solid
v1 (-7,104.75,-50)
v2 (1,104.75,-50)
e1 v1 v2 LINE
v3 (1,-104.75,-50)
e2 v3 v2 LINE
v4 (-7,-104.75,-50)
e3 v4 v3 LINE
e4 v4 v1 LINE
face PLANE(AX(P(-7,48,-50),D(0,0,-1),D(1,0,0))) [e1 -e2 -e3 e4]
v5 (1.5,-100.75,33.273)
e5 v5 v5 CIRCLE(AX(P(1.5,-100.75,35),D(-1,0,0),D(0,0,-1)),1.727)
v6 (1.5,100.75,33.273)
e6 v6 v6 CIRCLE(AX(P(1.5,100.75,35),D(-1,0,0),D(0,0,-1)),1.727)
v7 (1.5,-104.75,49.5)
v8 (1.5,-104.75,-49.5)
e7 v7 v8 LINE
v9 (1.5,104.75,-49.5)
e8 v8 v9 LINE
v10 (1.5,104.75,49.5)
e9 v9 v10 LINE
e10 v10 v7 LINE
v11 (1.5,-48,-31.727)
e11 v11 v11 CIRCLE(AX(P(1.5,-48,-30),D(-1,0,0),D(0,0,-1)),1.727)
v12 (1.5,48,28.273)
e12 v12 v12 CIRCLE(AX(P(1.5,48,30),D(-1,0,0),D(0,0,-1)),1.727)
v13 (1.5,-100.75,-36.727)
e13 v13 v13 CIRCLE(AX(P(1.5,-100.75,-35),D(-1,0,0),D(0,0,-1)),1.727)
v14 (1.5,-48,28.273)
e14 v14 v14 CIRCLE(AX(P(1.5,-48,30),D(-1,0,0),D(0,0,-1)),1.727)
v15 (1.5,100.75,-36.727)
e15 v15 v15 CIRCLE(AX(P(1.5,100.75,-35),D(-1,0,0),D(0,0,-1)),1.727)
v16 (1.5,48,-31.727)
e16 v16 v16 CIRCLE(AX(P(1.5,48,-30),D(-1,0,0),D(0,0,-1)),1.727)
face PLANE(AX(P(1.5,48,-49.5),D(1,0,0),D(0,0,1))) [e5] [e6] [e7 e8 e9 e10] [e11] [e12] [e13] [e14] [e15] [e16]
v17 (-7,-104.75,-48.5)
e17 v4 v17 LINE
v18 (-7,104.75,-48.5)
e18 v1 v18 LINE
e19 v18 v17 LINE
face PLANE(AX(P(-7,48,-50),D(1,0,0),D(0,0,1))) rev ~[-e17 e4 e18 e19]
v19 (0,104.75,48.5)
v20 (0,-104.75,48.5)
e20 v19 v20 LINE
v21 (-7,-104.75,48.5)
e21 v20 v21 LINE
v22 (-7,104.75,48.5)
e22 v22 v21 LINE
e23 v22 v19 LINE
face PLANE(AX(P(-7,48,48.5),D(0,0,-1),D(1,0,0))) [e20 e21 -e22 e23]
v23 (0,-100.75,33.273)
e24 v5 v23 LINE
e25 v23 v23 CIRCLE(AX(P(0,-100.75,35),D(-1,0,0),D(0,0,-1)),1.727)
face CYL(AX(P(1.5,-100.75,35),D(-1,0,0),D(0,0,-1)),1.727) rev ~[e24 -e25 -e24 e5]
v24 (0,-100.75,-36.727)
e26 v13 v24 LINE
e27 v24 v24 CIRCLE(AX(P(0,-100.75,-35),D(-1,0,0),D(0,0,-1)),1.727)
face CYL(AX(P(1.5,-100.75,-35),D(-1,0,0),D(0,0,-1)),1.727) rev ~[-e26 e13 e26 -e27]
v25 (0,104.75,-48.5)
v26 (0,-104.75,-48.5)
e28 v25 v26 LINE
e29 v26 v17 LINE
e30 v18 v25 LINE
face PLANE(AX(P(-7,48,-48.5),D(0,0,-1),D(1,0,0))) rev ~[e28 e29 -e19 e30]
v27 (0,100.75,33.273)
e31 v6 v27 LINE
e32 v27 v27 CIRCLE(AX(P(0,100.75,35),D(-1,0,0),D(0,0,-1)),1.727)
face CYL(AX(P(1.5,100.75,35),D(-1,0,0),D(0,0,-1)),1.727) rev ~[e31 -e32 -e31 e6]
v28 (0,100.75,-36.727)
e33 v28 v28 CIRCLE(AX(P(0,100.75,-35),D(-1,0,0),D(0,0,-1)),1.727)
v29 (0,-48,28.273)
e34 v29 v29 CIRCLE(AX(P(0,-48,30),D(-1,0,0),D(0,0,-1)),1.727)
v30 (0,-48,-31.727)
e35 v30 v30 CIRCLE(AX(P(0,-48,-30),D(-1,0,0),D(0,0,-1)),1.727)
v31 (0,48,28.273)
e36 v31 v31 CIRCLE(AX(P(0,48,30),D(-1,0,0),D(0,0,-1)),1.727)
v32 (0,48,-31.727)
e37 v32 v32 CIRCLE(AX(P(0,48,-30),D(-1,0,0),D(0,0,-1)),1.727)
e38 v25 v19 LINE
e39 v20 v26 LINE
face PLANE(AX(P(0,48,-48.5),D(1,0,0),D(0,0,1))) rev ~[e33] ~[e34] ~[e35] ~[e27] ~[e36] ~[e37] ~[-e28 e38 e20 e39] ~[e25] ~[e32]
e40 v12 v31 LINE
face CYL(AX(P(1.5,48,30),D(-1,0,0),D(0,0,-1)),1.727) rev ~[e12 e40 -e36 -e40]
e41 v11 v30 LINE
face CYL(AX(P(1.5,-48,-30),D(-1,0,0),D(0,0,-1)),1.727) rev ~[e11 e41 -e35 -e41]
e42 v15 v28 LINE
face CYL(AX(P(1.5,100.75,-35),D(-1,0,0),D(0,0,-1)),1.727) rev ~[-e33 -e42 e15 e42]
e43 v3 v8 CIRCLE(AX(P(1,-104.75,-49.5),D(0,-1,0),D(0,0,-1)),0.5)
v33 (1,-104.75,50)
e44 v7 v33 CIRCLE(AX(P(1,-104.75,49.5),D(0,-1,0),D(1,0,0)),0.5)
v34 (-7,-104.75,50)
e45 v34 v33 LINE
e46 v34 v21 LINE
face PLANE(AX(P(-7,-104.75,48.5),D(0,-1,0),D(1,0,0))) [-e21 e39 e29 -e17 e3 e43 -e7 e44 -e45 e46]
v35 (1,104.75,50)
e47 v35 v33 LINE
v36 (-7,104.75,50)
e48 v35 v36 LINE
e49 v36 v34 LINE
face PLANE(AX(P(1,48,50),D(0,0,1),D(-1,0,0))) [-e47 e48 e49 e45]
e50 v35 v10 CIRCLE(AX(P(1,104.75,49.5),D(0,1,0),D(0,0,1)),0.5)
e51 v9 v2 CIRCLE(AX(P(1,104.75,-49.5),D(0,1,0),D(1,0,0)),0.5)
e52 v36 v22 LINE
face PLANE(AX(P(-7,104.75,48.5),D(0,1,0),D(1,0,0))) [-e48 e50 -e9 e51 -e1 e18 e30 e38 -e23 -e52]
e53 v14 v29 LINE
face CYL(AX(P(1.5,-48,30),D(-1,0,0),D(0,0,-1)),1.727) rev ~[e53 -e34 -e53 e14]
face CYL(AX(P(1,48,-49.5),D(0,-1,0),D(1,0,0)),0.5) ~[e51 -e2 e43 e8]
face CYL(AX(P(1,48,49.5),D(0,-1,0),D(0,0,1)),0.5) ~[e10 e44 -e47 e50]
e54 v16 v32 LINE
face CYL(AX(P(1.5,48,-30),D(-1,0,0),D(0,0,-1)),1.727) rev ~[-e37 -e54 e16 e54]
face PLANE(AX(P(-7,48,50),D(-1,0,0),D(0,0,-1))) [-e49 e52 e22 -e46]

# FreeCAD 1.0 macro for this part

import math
import FreeCAD as App
import Part
import Sketcher


def edges_at(feature, points):
    """Names of the edges that pass closest to the given points."""
    edges = feature.Shape.Edges
    near = lambda p: min(range(len(edges)), key=lambda i: edges[i].distToShape(Part.Vertex(*p))[0])
    return sorted({f"Edge{near(p) + 1}" for p in points})

doc = App.newDocument("Part")
params = doc.addObject("Spreadsheet::Sheet", "Params")
for row, (alias, value) in enumerate([
    ("sketch1_width", "96 mm"),
    ("sketch1_height", "100 mm"),
    ("pad1_length", "1.5 mm"),
    ("sketch2_height", "96 mm"),
    ("sketch2_width", "8.5 mm"),
    ("pad2_length", "1.5 mm"),
    ("fillet_radius", "0.5 mm"),
    ("sketch3_radius", "0.5 mm"),
    ("sketch3_width", "8 mm"),
    ("sketch3_width2", "7 mm"),
    ("sketch3_height", "99 mm"),
    ("sketch3_height2", "97 mm"),
    ("pad3_length", "56.75 mm"),
    ("sketch4_radius", "0.5 mm"),
    ("sketch4_width", "8 mm"),
    ("sketch4_width2", "7 mm"),
    ("sketch4_height", "99 mm"),
    ("sketch4_height2", "97 mm"),
    ("pad4_length", "56.75 mm"),
    ("hole_diameter", "3.454 mm"),
], start=1):
    params.set(f"A{row}", alias)
    params.set(f"B{row}", "=" + value)
    params.setAlias(f"B{row}", alias)

body = doc.addObject("PartDesign::Body", "Body")

# Sketch on YZ plane
sketch1 = body.newObject("Sketcher::SketchObject", "Sketch")
sketch1.AttachmentSupport = (doc.getObject("YZ_Plane"), [""])
sketch1.MapMode = "FlatFace"
sketch1.addGeometry([
    Part.LineSegment(App.Vector(48, -50, 0), App.Vector(48, 50, 0)),
    Part.LineSegment(App.Vector(48, 50, 0), App.Vector(-48, 50, 0)),
    Part.LineSegment(App.Vector(-48, 50, 0), App.Vector(-48, -50, 0)),
    Part.LineSegment(App.Vector(-48, -50, 0), App.Vector(48, -50, 0)),
], False)
sketch1.addConstraint([
    Sketcher.Constraint("Coincident", 0, 2, 1, 1),
    Sketcher.Constraint("Coincident", 1, 2, 2, 1),
    Sketcher.Constraint("Coincident", 2, 2, 3, 1),
    Sketcher.Constraint("Coincident", 3, 2, 0, 1),
    Sketcher.Constraint("Vertical", 0),
    Sketcher.Constraint("Horizontal", 1),
    Sketcher.Constraint("Vertical", 2),
    Sketcher.Constraint("Horizontal", 3),
    Sketcher.Constraint("Symmetric", 0, 2, 2, 2, -1, 1),
    Sketcher.Constraint("DistanceX", 1, 2, 1, 1, 96.0),
    Sketcher.Constraint("DistanceY", 0, 1, 0, 2, 100.0),
])
sketch1.setExpression("Constraints[9]", "Params.sketch1_width")
sketch1.setExpression("Constraints[10]", "Params.sketch1_height")
pad1 = body.newObject("PartDesign::Pad", "Pad")
pad1.Profile = sketch1
pad1.setExpression("Length", "Params.pad1_length")

# Sketch on XY plane
sketch2 = body.newObject("Sketcher::SketchObject", "Sketch001")
sketch2.AttachmentSupport = (doc.getObject("XY_Plane"), [""])
sketch2.MapMode = "FlatFace"
sketch2.AttachmentOffset = App.Placement(App.Vector(0, 0, 50), App.Rotation())
sketch2.addGeometry([
    Part.LineSegment(App.Vector(1.5, 48, 0), App.Vector(-7, 48, 0)),
    Part.LineSegment(App.Vector(-7, 48, 0), App.Vector(-7, -48, 0)),
    Part.LineSegment(App.Vector(-7, -48, 0), App.Vector(1.5, -48, 0)),
    Part.LineSegment(App.Vector(1.5, -48, 0), App.Vector(1.5, 48, 0)),
], False)
sketch2.addConstraint([
    Sketcher.Constraint("Coincident", 0, 2, 1, 1),
    Sketcher.Constraint("Coincident", 1, 2, 2, 1),
    Sketcher.Constraint("Coincident", 2, 2, 3, 1),
    Sketcher.Constraint("Coincident", 3, 2, 0, 1),
    Sketcher.Constraint("Horizontal", 0),
    Sketcher.Constraint("Vertical", 1),
    Sketcher.Constraint("Horizontal", 2),
    Sketcher.Constraint("Vertical", 3),
    Sketcher.Constraint("DistanceY", 1, 2, 1, 1, 96.0),
    Sketcher.Constraint("DistanceX", 0, 2, 0, 1, 8.5),
    Sketcher.Constraint("DistanceX", 0, 2, -1, 1, 7.0),
    Sketcher.Constraint("DistanceY", -1, 1, 0, 2, 48.0),
])
sketch2.setExpression("Constraints[8]", "Params.sketch2_height")
sketch2.setExpression("Constraints[9]", "Params.sketch2_width")
pad2 = body.newObject("PartDesign::Pad", "Pad001")
pad2.Profile = sketch2
pad2.setExpression("Length", "Params.pad2_length")
pad2.Reversed = True
doc.recompute()

mirrored = body.newObject("PartDesign::Mirrored", "Mirrored")
mirrored.Originals = [pad2]
mirrored.MirrorPlane = (doc.getObject("XY_Plane"), [""])
body.Tip = mirrored
doc.recompute()

fillet = body.newObject("PartDesign::Fillet", "Fillet")
fillet.Base = (mirrored, edges_at(mirrored, [(1.5, 0, 50), (1.5, 0, -50)]))
fillet.setExpression("Radius", "Params.fillet_radius")

# Sketch on XZ plane
sketch3 = body.newObject("Sketcher::SketchObject", "Sketch002")
sketch3.AttachmentSupport = (doc.getObject("XZ_Plane"), [""])
sketch3.MapMode = "FlatFace"
sketch3.AttachmentOffset = App.Placement(App.Vector(0, 0, 48), App.Rotation())
sketch3.addGeometry([
    Part.LineSegment(App.Vector(-7, -50, 0), App.Vector(1, -50, 0)),  # 0
    Part.ArcOfCircle(Part.Circle(App.Vector(1, -49.5, 0), App.Vector(0, 0, 1), 0.5), math.radians(-90), math.radians(0)),  # 1
    Part.LineSegment(App.Vector(1.5, -49.5, 0), App.Vector(1.5, 49.5, 0)),  # 2
    Part.ArcOfCircle(Part.Circle(App.Vector(1, 49.5, 0), App.Vector(0, 0, 1), 0.5), math.radians(0), math.radians(90)),  # 3
    Part.LineSegment(App.Vector(1, 50, 0), App.Vector(-7, 50, 0)),  # 4
    Part.LineSegment(App.Vector(-7, 50, 0), App.Vector(-7, 48.5, 0)),  # 5
    Part.LineSegment(App.Vector(-7, 48.5, 0), App.Vector(0, 48.5, 0)),  # 6
    Part.LineSegment(App.Vector(0, 48.5, 0), App.Vector(0, -48.5, 0)),  # 7
    Part.LineSegment(App.Vector(0, -48.5, 0), App.Vector(-7, -48.5, 0)),  # 8
    Part.LineSegment(App.Vector(-7, -48.5, 0), App.Vector(-7, -50, 0)),  # 9
], False)
sketch3.addConstraint([
    Sketcher.Constraint("Tangent", 0, 2, 1, 1),
    Sketcher.Constraint("Tangent", 1, 2, 2, 1),
    Sketcher.Constraint("Tangent", 2, 2, 3, 1),
    Sketcher.Constraint("Tangent", 3, 2, 4, 1),
    Sketcher.Constraint("Coincident", 4, 2, 5, 1),
    Sketcher.Constraint("Coincident", 5, 2, 6, 1),
    Sketcher.Constraint("Coincident", 6, 2, 7, 1),
    Sketcher.Constraint("Coincident", 7, 2, 8, 1),
    Sketcher.Constraint("Coincident", 8, 2, 9, 1),
    Sketcher.Constraint("Coincident", 9, 2, 0, 1),
    Sketcher.Constraint("Horizontal", 0),
    Sketcher.Constraint("Vertical", 2),
    Sketcher.Constraint("Horizontal", 4),
    Sketcher.Constraint("Vertical", 5),
    Sketcher.Constraint("Horizontal", 6),
    Sketcher.Constraint("Vertical", 7),
    Sketcher.Constraint("Horizontal", 8),
    Sketcher.Constraint("Vertical", 9),
    Sketcher.Constraint("Equal", 1, 3),
    Sketcher.Constraint("Symmetric", 6, 2, 7, 2, -1, 1),
    Sketcher.Constraint("Symmetric", 4, 2, 9, 2, -1),
    Sketcher.Constraint("Radius", 1, 0.5),
    Sketcher.Constraint("DistanceX", 0, 1, 0, 2, 8.0),
    Sketcher.Constraint("DistanceX", 6, 1, 6, 2, 7.0),
    Sketcher.Constraint("DistanceY", 2, 1, 2, 2, 99.0),
    Sketcher.Constraint("DistanceY", 7, 2, 7, 1, 97.0),
])
sketch3.setExpression("Constraints[21]", "Params.sketch3_radius")
sketch3.setExpression("Constraints[22]", "Params.sketch3_width")
sketch3.setExpression("Constraints[23]", "Params.sketch3_width2")
sketch3.setExpression("Constraints[24]", "Params.sketch3_height")
sketch3.setExpression("Constraints[25]", "Params.sketch3_height2")
pad3 = body.newObject("PartDesign::Pad", "Pad002")
pad3.Profile = sketch3
pad3.setExpression("Length", "Params.pad3_length")

# Sketch on XZ plane
sketch4 = body.newObject("Sketcher::SketchObject", "Sketch003")
sketch4.AttachmentSupport = (doc.getObject("XZ_Plane"), [""])
sketch4.MapMode = "FlatFace"
sketch4.AttachmentOffset = App.Placement(App.Vector(0, 0, -48), App.Rotation())
sketch4.addGeometry([
    Part.LineSegment(App.Vector(1.5, 49.5, 0), App.Vector(1.5, -49.5, 0)),  # 0
    Part.ArcOfCircle(Part.Circle(App.Vector(1, -49.5, 0), App.Vector(0, 0, 1), 0.5), math.radians(-90), math.radians(0)),  # 1
    Part.LineSegment(App.Vector(1, -50, 0), App.Vector(-7, -50, 0)),  # 2
    Part.LineSegment(App.Vector(-7, -50, 0), App.Vector(-7, -48.5, 0)),  # 3
    Part.LineSegment(App.Vector(-7, -48.5, 0), App.Vector(0, -48.5, 0)),  # 4
    Part.LineSegment(App.Vector(0, -48.5, 0), App.Vector(0, 48.5, 0)),  # 5
    Part.LineSegment(App.Vector(0, 48.5, 0), App.Vector(-7, 48.5, 0)),  # 6
    Part.LineSegment(App.Vector(-7, 48.5, 0), App.Vector(-7, 50, 0)),  # 7
    Part.LineSegment(App.Vector(-7, 50, 0), App.Vector(1, 50, 0)),  # 8
    Part.ArcOfCircle(Part.Circle(App.Vector(1, 49.5, 0), App.Vector(0, 0, 1), 0.5), math.radians(0), math.radians(90)),  # 9
], False)
sketch4.addConstraint([
    Sketcher.Constraint("Tangent", 0, 2, 1, 2),
    Sketcher.Constraint("Tangent", 1, 1, 2, 1),
    Sketcher.Constraint("Coincident", 2, 2, 3, 1),
    Sketcher.Constraint("Coincident", 3, 2, 4, 1),
    Sketcher.Constraint("Coincident", 4, 2, 5, 1),
    Sketcher.Constraint("Coincident", 5, 2, 6, 1),
    Sketcher.Constraint("Coincident", 6, 2, 7, 1),
    Sketcher.Constraint("Coincident", 7, 2, 8, 1),
    Sketcher.Constraint("Tangent", 8, 2, 9, 2),
    Sketcher.Constraint("Tangent", 9, 1, 0, 1),
    Sketcher.Constraint("Vertical", 0),
    Sketcher.Constraint("Horizontal", 2),
    Sketcher.Constraint("Vertical", 3),
    Sketcher.Constraint("Horizontal", 4),
    Sketcher.Constraint("Vertical", 5),
    Sketcher.Constraint("Horizontal", 6),
    Sketcher.Constraint("Vertical", 7),
    Sketcher.Constraint("Horizontal", 8),
    Sketcher.Constraint("Equal", 1, 9),
    Sketcher.Constraint("Symmetric", 4, 2, 5, 2, -1, 1),
    Sketcher.Constraint("Symmetric", 2, 2, 7, 2, -1),
    Sketcher.Constraint("Radius", 1, 0.5),
    Sketcher.Constraint("DistanceX", 2, 2, 2, 1, 8.0),
    Sketcher.Constraint("DistanceX", 4, 1, 4, 2, 7.0),
    Sketcher.Constraint("DistanceY", 0, 2, 0, 1, 99.0),
    Sketcher.Constraint("DistanceY", 5, 1, 5, 2, 97.0),
])
sketch4.setExpression("Constraints[21]", "Params.sketch4_radius")
sketch4.setExpression("Constraints[22]", "Params.sketch4_width")
sketch4.setExpression("Constraints[23]", "Params.sketch4_width2")
sketch4.setExpression("Constraints[24]", "Params.sketch4_height")
sketch4.setExpression("Constraints[25]", "Params.sketch4_height2")
pad4 = body.newObject("PartDesign::Pad", "Pad003")
pad4.Profile = sketch4
pad4.setExpression("Length", "Params.pad4_length")
pad4.Reversed = True

# Sketch on YZ plane
sketch5 = body.newObject("Sketcher::SketchObject", "Sketch004")
sketch5.AttachmentSupport = (doc.getObject("YZ_Plane"), [""])
sketch5.MapMode = "FlatFace"
sketch5.AttachmentOffset = App.Placement(App.Vector(0, 0, 1.5), App.Rotation())
sketch5.addGeometry([
    Part.Circle(App.Vector(-100.75, -35, 0), App.Vector(0, 0, 1), 1.727),  # 0
    Part.Circle(App.Vector(-100.75, 35, 0), App.Vector(0, 0, 1), 1.727),  # 1
    Part.Circle(App.Vector(-48, 30, 0), App.Vector(0, 0, 1), 1.727),  # 2
    Part.Circle(App.Vector(-48, -30, 0), App.Vector(0, 0, 1), 1.727),  # 3
    Part.Circle(App.Vector(48, 30, 0), App.Vector(0, 0, 1), 1.727),  # 4
    Part.Circle(App.Vector(48, -30, 0), App.Vector(0, 0, 1), 1.727),  # 5
    Part.Circle(App.Vector(100.75, 35, 0), App.Vector(0, 0, 1), 1.727),  # 6
    Part.Circle(App.Vector(100.75, -35, 0), App.Vector(0, 0, 1), 1.727),  # 7
], False)
sketch5.addConstraint([
    Sketcher.Constraint("Equal", 0, 1),
    Sketcher.Constraint("Equal", 1, 2),
    Sketcher.Constraint("Equal", 2, 3),
    Sketcher.Constraint("Equal", 3, 4),
    Sketcher.Constraint("Equal", 4, 5),
    Sketcher.Constraint("Equal", 5, 6),
    Sketcher.Constraint("Equal", 6, 7),
    Sketcher.Constraint("Symmetric", 3, 3, 4, 3, -1, 1),
    Sketcher.Constraint("Symmetric", 2, 3, 5, 3, -1, 1),
    Sketcher.Constraint("Symmetric", 0, 3, 6, 3, -1, 1),
    Sketcher.Constraint("Symmetric", 1, 3, 7, 3, -1, 1),
    Sketcher.Constraint("Symmetric", 2, 3, 4, 3, -2),
    Sketcher.Constraint("Symmetric", 1, 3, 6, 3, -2),
    Sketcher.Constraint("Diameter", 0, 3.454),
    Sketcher.Constraint("DistanceY", 0, 3, -1, 1, 35.0),
    Sketcher.Constraint("DistanceX", 2, 3, -1, 1, 48.0),
    Sketcher.Constraint("DistanceY", -1, 1, 2, 3, 30.0),
    Sketcher.Constraint("DistanceX", 1, 3, 6, 3, 201.5),
])
doc.recompute()
hole = body.newObject("PartDesign::Hole", "Hole")
hole.Profile = sketch5
hole.ThreadType = "None"
hole.setExpression("Diameter", "Params.hole_diameter")
hole.DepthType = "ThroughAll"

doc.recompute()
